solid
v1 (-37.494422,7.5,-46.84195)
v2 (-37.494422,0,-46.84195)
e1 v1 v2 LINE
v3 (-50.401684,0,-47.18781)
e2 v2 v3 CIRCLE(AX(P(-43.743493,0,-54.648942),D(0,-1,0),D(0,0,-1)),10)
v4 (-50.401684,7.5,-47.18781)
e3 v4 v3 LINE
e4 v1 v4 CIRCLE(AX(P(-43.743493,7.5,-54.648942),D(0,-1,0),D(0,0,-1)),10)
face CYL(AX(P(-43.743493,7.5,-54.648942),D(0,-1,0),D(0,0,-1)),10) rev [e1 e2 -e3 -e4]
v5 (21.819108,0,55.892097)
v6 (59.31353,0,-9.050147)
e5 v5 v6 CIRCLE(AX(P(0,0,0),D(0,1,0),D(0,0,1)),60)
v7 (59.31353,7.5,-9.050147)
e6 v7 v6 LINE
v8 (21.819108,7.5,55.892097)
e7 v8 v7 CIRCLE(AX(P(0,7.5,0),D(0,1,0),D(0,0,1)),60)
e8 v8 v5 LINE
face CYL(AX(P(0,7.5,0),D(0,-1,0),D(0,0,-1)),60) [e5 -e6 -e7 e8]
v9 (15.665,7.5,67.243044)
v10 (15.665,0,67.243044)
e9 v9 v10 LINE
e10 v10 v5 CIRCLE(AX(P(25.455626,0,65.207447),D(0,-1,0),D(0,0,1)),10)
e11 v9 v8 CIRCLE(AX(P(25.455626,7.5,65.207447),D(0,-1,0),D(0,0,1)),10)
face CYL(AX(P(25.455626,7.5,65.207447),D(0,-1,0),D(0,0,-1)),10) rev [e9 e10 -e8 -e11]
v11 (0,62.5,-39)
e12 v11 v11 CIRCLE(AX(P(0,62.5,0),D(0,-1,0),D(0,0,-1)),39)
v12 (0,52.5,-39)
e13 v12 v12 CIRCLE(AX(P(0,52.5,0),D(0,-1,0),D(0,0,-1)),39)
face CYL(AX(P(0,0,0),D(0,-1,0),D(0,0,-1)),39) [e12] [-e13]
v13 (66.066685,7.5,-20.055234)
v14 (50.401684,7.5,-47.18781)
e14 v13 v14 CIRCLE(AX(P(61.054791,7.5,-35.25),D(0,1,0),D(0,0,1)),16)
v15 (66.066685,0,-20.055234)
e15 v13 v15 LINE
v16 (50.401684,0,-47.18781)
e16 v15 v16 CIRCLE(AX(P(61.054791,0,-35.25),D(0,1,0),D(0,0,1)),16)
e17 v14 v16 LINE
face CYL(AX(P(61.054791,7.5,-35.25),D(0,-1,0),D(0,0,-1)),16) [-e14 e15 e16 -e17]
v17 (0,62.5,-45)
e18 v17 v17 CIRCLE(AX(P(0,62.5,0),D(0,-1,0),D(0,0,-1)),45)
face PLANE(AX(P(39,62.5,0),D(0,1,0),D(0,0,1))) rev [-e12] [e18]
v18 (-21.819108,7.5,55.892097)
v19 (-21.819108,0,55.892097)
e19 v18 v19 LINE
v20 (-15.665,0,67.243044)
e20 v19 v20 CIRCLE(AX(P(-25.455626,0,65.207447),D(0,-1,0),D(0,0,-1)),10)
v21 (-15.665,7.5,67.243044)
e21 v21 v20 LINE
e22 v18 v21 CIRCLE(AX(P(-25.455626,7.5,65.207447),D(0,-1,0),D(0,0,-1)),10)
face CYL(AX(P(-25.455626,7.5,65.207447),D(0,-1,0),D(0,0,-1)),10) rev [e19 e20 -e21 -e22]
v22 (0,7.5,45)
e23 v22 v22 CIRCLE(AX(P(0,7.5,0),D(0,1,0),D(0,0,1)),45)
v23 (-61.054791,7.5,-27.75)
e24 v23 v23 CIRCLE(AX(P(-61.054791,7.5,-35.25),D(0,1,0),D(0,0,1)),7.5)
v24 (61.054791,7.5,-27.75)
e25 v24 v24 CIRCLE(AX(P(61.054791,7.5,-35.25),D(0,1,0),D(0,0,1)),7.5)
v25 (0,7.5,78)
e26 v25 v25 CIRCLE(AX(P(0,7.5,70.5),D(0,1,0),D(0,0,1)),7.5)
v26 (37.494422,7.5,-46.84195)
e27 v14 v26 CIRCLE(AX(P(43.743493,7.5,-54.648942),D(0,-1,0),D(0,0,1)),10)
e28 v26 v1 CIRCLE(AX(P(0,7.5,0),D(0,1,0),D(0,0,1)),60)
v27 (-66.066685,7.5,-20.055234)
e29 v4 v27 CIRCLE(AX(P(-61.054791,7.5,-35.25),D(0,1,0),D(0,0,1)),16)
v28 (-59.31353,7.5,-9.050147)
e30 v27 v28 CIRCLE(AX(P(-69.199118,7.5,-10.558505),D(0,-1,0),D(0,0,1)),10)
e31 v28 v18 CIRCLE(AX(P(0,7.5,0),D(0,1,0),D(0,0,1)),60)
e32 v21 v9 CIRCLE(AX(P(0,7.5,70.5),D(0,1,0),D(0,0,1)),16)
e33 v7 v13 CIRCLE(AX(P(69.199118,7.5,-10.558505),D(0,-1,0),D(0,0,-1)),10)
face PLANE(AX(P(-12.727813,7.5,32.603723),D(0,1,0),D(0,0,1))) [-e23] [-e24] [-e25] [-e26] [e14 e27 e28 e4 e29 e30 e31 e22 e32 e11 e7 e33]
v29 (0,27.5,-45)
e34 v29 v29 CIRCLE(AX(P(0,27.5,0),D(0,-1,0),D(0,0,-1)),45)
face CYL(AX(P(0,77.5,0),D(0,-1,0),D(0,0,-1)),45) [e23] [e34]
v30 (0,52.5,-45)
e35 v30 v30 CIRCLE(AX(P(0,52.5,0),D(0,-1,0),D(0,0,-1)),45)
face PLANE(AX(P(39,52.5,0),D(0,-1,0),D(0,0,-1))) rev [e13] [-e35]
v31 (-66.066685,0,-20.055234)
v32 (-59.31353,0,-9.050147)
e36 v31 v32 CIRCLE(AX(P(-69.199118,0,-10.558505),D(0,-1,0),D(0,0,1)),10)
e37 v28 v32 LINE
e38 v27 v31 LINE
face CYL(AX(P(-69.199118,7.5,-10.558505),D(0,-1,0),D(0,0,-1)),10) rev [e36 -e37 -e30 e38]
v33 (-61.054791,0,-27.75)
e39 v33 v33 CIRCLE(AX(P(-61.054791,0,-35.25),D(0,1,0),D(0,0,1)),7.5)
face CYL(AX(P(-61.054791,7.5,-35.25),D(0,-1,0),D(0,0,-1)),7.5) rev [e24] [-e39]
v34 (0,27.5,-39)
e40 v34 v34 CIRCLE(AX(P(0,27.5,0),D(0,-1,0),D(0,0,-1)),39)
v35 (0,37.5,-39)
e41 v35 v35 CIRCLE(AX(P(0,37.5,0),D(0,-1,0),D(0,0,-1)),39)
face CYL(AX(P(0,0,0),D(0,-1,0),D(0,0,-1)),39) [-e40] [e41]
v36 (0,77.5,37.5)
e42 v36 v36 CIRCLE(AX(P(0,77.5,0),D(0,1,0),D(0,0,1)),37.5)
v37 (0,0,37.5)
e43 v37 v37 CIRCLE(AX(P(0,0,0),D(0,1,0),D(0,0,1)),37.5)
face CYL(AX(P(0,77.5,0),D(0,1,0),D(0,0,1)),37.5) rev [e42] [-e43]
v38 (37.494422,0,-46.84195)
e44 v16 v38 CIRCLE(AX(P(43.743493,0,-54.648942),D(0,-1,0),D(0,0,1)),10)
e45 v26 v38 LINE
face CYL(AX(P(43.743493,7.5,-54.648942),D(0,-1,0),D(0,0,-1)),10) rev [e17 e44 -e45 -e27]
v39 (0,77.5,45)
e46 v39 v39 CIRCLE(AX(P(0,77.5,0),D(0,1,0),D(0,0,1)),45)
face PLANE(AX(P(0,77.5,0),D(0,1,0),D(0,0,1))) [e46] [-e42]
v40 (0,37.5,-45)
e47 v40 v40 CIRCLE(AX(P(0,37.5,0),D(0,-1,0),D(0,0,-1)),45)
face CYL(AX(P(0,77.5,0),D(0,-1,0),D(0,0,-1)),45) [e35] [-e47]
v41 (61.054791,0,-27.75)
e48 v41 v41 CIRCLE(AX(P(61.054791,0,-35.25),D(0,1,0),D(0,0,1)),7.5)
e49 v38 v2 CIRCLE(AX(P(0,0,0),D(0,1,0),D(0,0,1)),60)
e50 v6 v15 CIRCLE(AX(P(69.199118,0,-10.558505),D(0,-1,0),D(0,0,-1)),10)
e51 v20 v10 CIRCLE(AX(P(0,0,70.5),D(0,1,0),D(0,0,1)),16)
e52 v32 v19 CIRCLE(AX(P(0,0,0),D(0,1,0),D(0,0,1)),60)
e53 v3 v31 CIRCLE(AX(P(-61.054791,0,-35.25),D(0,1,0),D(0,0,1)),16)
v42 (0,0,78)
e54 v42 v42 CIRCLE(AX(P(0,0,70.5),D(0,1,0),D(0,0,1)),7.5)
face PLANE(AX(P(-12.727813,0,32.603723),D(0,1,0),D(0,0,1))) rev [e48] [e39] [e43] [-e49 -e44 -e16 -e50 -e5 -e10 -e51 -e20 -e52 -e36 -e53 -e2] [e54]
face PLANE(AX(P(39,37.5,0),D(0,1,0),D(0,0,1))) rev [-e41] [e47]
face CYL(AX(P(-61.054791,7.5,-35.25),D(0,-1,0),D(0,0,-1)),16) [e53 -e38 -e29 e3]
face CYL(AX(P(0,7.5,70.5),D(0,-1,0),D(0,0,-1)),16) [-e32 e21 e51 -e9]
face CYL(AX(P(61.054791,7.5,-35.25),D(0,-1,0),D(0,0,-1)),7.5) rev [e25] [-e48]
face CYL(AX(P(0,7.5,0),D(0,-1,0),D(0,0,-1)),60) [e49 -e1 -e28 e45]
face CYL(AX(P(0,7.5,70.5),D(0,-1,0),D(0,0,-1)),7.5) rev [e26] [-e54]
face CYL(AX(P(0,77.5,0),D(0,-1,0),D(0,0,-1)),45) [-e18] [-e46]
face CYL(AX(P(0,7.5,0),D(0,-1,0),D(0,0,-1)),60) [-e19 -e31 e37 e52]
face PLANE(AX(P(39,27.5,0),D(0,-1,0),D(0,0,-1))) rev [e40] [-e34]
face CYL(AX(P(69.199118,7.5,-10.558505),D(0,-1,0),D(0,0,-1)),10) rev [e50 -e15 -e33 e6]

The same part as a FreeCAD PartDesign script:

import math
import FreeCAD as App
import Part
import Sketcher
from FreeCAD import Vector
Q = App.Units.Quantity

doc = App.newDocument("Part")
body = doc.addObject("PartDesign::Body", "Body")

# Sketch on XZ plane
sketch1 = body.newObject("Sketcher::SketchObject", "Sketch")
sketch1.AttachmentSupport = (doc.getObject("XZ_Plane"), [""])
sketch1.MapMode = "FlatFace"
sketch1.addGeometry([
    Part.ArcOfCircle(Part.Circle(Vector(0, 0, 0), Vector(0, 0, 1), 60), math.radians(-9), math.radians(69)),  # 0
    Part.ArcOfCircle(Part.Circle(Vector(69, -11, 0), Vector(0, 0, 1), 10), math.radians(171), math.radians(252)),  # 1
    Part.ArcOfCircle(Part.Circle(Vector(61, -35, 0), Vector(0, 0, 1), 16), math.radians(-132), math.radians(72)),  # 2
    Part.ArcOfCircle(Part.Circle(Vector(44, -55, 0), Vector(0, 0, 1), 10), math.radians(48), math.radians(129)),  # 3
    Part.ArcOfCircle(Part.Circle(Vector(0, 0, 0), Vector(0, 0, 1), 60), math.radians(-129), math.radians(-51)),  # 4
    Part.ArcOfCircle(Part.Circle(Vector(-44, -55, 0), Vector(0, 0, 1), 10), math.radians(51), math.radians(132)),  # 5
    Part.ArcOfCircle(Part.Circle(Vector(-61, -35, 0), Vector(0, 0, 1), 16), math.radians(108), math.radians(312)),  # 6
    Part.ArcOfCircle(Part.Circle(Vector(-69, -11, 0), Vector(0, 0, 1), 10), math.radians(-72), math.radians(9)),  # 7
    Part.ArcOfCircle(Part.Circle(Vector(0, 0, 0), Vector(0, 0, 1), 60), math.radians(111), math.radians(189)),  # 8
    Part.ArcOfCircle(Part.Circle(Vector(-25, 65, 0), Vector(0, 0, 1), 10), math.radians(-69), math.radians(12)),  # 9
    Part.ArcOfCircle(Part.Circle(Vector(0, 70, 0), Vector(0, 0, 1), 16), math.radians(-12), math.radians(192)),  # 10
    Part.ArcOfCircle(Part.Circle(Vector(25, 65, 0), Vector(0, 0, 1), 10), math.radians(168), math.radians(249)),  # 11
    Part.Circle(Vector(0, 70, 0), Vector(0, 0, 1), 8),  # 12
    Part.Circle(Vector(-61, -35, 0), Vector(0, 0, 1), 8),  # 13
    Part.Circle(Vector(61, -35, 0), Vector(0, 0, 1), 8),  # 14
], False)
sketch1.addConstraint([
    Sketcher.Constraint("Tangent", 0, 1, 1, 1),
    Sketcher.Constraint("Tangent", 1, 2, 2, 2),
    Sketcher.Constraint("Tangent", 2, 1, 3, 1),
    Sketcher.Constraint("Tangent", 3, 2, 4, 2),
    Sketcher.Constraint("Tangent", 4, 1, 5, 1),
    Sketcher.Constraint("Tangent", 5, 2, 6, 2),
    Sketcher.Constraint("Tangent", 6, 1, 7, 1),
    Sketcher.Constraint("Tangent", 7, 2, 8, 2),
    Sketcher.Constraint("Tangent", 8, 1, 9, 1),
    Sketcher.Constraint("Tangent", 9, 2, 10, 2),
    Sketcher.Constraint("Tangent", 10, 1, 11, 1),
    Sketcher.Constraint("Tangent", 11, 2, 0, 2),
    Sketcher.Constraint("Coincident", 0, 3, -1, 1),
    Sketcher.Constraint("Coincident", 4, 3, -1, 1),
    Sketcher.Constraint("Coincident", 8, 3, -1, 1),
    Sketcher.Constraint("Coincident", 12, 3, 10, 3),
    Sketcher.Constraint("Coincident", 13, 3, 6, 3),
    Sketcher.Constraint("Coincident", 14, 3, 2, 3),
    Sketcher.Constraint("Equal", 1, 3),
    Sketcher.Constraint("Equal", 0, 4),
    Sketcher.Constraint("Equal", 3, 5),
    Sketcher.Constraint("Equal", 2, 6),
    Sketcher.Constraint("Equal", 5, 7),
    Sketcher.Constraint("Equal", 4, 8),
    Sketcher.Constraint("Equal", 7, 9),
    Sketcher.Constraint("Equal", 6, 10),
    Sketcher.Constraint("Equal", 9, 11),
    Sketcher.Constraint("Equal", 12, 13),
    Sketcher.Constraint("Equal", 13, 14),
    Sketcher.Constraint("Symmetric", 2, 3, 6, 3, -2),
    Sketcher.Constraint("PointOnObject", 10, 3, -2),
    Sketcher.Constraint("Diameter", 12, Q("15 mm")),
    Sketcher.Constraint("Radius", 0, Q("60 mm")),
    Sketcher.Constraint("Radius", 1, Q("10 mm")),
    Sketcher.Constraint("Radius", 2, Q("16 mm")),
    Sketcher.Constraint("DistanceY", -1, 1, 10, 3, Q("70.5 mm")),
    Sketcher.Constraint("DistanceY", 2, 3, -1, 1, Q("35.25 mm")),
    Sketcher.Constraint("DistanceX", 2, 1, 1, 2, Q("15.665 mm")),
])
pad1 = body.newObject("PartDesign::Pad", "Pad")
pad1.Profile = sketch1
pad1.Length = 7.5
pad1.Reversed = True

# Sketch on XZ plane
sketch2 = body.newObject("Sketcher::SketchObject", "Sketch001")
sketch2.AttachmentSupport = (doc.getObject("XZ_Plane"), [""])
sketch2.MapMode = "FlatFace"
sketch2.AttachmentOffset = App.Placement(Vector(0, 0, -7.5), App.Rotation())
sketch2.addGeometry(Part.Circle(Vector(0, 0, 0), Vector(0, 0, 1), 45), False)
sketch2.addConstraint([
    Sketcher.Constraint("Coincident", 0, 3, -1, 1),
    Sketcher.Constraint("Diameter", 0, Q("90 mm")),
])
pad2 = body.newObject("PartDesign::Pad", "Pad001")
pad2.Profile = sketch2
pad2.Length = 70
pad2.Reversed = True

# Sketch on XY plane
sketch3 = body.newObject("Sketcher::SketchObject", "Sketch002")
sketch3.AttachmentSupport = (doc.getObject("XY_Plane"), [""])
sketch3.MapMode = "FlatFace"
sketch3.addGeometry([
    Part.LineSegment(Vector(39, 62, 0), Vector(39, 52, 0)),  # 0
    Part.LineSegment(Vector(39, 52, 0), Vector(45, 52, 0)),  # 1
    Part.LineSegment(Vector(45, 52, 0), Vector(45, 62, 0)),  # 2
    Part.LineSegment(Vector(45, 62, 0), Vector(39, 62, 0)),  # 3
    Part.LineSegment(Vector(39, 38, 0), Vector(39, 28, 0)),  # 4
    Part.LineSegment(Vector(39, 28, 0), Vector(45, 28, 0)),  # 5
    Part.LineSegment(Vector(45, 28, 0), Vector(45, 38, 0)),  # 6
    Part.LineSegment(Vector(45, 38, 0), Vector(39, 38, 0)),  # 7
], False)
sketch3.addConstraint([
    Sketcher.Constraint("Coincident", 0, 2, 1, 1),
    Sketcher.Constraint("Coincident", 1, 2, 2, 1),
    Sketcher.Constraint("Coincident", 2, 2, 3, 1),
    Sketcher.Constraint("Coincident", 3, 2, 0, 1),
    Sketcher.Constraint("Coincident", 4, 2, 5, 1),
    Sketcher.Constraint("Coincident", 5, 2, 6, 1),
    Sketcher.Constraint("Coincident", 6, 2, 7, 1),
    Sketcher.Constraint("Coincident", 7, 2, 4, 1),
    Sketcher.Constraint("Vertical", 0),
    Sketcher.Constraint("Horizontal", 1),
    Sketcher.Constraint("Vertical", 2),
    Sketcher.Constraint("Horizontal", 3),
    Sketcher.Constraint("Vertical", 4),
    Sketcher.Constraint("Horizontal", 5),
    Sketcher.Constraint("Vertical", 6),
    Sketcher.Constraint("Horizontal", 7),
    Sketcher.Constraint("Vertical", 3, 2, 4, 2),
    Sketcher.Constraint("Vertical", 2, 2, 5, 2),
    Sketcher.Constraint("Equal", 2, 4),
    Sketcher.Constraint("DistanceX", 1, 1, 1, 2, Q("6 mm")),
    Sketcher.Constraint("DistanceY", 0, 2, 0, 1, Q("10 mm")),
    Sketcher.Constraint("DistanceX", -1, 1, 0, 2, Q("39 mm")),
    Sketcher.Constraint("DistanceY", 4, 2, 0, 2, Q("25 mm")),
    Sketcher.Constraint("DistanceY", -1, 1, 0, 2, Q("52.5 mm")),
])
groove = body.newObject("PartDesign::Groove", "Groove")
groove.Profile = sketch3
groove.ReferenceAxis = (sketch3, ["V_Axis"])
groove.Angle = 360

# Sketch on XZ plane
sketch4 = body.newObject("Sketcher::SketchObject", "Sketch003")
sketch4.AttachmentSupport = (doc.getObject("XZ_Plane"), [""])
sketch4.MapMode = "FlatFace"
sketch4.AttachmentOffset = App.Placement(Vector(0, 0, -77.5), App.Rotation())
sketch4.addGeometry(Part.Circle(Vector(0, 0, 0), Vector(0, 0, 1), 38), False)
sketch4.addConstraint([
    Sketcher.Constraint("Coincident", 0, 3, -1, 1),
    Sketcher.Constraint("Diameter", 0, Q("75 mm")),
])
doc.recompute()
hole = body.newObject("PartDesign::Hole", "Hole")
hole.Profile = sketch4
hole.ThreadType = "None"
hole.Diameter = 75
hole.DepthType = "ThroughAll"
hole.Reversed = True

doc.recompute()
